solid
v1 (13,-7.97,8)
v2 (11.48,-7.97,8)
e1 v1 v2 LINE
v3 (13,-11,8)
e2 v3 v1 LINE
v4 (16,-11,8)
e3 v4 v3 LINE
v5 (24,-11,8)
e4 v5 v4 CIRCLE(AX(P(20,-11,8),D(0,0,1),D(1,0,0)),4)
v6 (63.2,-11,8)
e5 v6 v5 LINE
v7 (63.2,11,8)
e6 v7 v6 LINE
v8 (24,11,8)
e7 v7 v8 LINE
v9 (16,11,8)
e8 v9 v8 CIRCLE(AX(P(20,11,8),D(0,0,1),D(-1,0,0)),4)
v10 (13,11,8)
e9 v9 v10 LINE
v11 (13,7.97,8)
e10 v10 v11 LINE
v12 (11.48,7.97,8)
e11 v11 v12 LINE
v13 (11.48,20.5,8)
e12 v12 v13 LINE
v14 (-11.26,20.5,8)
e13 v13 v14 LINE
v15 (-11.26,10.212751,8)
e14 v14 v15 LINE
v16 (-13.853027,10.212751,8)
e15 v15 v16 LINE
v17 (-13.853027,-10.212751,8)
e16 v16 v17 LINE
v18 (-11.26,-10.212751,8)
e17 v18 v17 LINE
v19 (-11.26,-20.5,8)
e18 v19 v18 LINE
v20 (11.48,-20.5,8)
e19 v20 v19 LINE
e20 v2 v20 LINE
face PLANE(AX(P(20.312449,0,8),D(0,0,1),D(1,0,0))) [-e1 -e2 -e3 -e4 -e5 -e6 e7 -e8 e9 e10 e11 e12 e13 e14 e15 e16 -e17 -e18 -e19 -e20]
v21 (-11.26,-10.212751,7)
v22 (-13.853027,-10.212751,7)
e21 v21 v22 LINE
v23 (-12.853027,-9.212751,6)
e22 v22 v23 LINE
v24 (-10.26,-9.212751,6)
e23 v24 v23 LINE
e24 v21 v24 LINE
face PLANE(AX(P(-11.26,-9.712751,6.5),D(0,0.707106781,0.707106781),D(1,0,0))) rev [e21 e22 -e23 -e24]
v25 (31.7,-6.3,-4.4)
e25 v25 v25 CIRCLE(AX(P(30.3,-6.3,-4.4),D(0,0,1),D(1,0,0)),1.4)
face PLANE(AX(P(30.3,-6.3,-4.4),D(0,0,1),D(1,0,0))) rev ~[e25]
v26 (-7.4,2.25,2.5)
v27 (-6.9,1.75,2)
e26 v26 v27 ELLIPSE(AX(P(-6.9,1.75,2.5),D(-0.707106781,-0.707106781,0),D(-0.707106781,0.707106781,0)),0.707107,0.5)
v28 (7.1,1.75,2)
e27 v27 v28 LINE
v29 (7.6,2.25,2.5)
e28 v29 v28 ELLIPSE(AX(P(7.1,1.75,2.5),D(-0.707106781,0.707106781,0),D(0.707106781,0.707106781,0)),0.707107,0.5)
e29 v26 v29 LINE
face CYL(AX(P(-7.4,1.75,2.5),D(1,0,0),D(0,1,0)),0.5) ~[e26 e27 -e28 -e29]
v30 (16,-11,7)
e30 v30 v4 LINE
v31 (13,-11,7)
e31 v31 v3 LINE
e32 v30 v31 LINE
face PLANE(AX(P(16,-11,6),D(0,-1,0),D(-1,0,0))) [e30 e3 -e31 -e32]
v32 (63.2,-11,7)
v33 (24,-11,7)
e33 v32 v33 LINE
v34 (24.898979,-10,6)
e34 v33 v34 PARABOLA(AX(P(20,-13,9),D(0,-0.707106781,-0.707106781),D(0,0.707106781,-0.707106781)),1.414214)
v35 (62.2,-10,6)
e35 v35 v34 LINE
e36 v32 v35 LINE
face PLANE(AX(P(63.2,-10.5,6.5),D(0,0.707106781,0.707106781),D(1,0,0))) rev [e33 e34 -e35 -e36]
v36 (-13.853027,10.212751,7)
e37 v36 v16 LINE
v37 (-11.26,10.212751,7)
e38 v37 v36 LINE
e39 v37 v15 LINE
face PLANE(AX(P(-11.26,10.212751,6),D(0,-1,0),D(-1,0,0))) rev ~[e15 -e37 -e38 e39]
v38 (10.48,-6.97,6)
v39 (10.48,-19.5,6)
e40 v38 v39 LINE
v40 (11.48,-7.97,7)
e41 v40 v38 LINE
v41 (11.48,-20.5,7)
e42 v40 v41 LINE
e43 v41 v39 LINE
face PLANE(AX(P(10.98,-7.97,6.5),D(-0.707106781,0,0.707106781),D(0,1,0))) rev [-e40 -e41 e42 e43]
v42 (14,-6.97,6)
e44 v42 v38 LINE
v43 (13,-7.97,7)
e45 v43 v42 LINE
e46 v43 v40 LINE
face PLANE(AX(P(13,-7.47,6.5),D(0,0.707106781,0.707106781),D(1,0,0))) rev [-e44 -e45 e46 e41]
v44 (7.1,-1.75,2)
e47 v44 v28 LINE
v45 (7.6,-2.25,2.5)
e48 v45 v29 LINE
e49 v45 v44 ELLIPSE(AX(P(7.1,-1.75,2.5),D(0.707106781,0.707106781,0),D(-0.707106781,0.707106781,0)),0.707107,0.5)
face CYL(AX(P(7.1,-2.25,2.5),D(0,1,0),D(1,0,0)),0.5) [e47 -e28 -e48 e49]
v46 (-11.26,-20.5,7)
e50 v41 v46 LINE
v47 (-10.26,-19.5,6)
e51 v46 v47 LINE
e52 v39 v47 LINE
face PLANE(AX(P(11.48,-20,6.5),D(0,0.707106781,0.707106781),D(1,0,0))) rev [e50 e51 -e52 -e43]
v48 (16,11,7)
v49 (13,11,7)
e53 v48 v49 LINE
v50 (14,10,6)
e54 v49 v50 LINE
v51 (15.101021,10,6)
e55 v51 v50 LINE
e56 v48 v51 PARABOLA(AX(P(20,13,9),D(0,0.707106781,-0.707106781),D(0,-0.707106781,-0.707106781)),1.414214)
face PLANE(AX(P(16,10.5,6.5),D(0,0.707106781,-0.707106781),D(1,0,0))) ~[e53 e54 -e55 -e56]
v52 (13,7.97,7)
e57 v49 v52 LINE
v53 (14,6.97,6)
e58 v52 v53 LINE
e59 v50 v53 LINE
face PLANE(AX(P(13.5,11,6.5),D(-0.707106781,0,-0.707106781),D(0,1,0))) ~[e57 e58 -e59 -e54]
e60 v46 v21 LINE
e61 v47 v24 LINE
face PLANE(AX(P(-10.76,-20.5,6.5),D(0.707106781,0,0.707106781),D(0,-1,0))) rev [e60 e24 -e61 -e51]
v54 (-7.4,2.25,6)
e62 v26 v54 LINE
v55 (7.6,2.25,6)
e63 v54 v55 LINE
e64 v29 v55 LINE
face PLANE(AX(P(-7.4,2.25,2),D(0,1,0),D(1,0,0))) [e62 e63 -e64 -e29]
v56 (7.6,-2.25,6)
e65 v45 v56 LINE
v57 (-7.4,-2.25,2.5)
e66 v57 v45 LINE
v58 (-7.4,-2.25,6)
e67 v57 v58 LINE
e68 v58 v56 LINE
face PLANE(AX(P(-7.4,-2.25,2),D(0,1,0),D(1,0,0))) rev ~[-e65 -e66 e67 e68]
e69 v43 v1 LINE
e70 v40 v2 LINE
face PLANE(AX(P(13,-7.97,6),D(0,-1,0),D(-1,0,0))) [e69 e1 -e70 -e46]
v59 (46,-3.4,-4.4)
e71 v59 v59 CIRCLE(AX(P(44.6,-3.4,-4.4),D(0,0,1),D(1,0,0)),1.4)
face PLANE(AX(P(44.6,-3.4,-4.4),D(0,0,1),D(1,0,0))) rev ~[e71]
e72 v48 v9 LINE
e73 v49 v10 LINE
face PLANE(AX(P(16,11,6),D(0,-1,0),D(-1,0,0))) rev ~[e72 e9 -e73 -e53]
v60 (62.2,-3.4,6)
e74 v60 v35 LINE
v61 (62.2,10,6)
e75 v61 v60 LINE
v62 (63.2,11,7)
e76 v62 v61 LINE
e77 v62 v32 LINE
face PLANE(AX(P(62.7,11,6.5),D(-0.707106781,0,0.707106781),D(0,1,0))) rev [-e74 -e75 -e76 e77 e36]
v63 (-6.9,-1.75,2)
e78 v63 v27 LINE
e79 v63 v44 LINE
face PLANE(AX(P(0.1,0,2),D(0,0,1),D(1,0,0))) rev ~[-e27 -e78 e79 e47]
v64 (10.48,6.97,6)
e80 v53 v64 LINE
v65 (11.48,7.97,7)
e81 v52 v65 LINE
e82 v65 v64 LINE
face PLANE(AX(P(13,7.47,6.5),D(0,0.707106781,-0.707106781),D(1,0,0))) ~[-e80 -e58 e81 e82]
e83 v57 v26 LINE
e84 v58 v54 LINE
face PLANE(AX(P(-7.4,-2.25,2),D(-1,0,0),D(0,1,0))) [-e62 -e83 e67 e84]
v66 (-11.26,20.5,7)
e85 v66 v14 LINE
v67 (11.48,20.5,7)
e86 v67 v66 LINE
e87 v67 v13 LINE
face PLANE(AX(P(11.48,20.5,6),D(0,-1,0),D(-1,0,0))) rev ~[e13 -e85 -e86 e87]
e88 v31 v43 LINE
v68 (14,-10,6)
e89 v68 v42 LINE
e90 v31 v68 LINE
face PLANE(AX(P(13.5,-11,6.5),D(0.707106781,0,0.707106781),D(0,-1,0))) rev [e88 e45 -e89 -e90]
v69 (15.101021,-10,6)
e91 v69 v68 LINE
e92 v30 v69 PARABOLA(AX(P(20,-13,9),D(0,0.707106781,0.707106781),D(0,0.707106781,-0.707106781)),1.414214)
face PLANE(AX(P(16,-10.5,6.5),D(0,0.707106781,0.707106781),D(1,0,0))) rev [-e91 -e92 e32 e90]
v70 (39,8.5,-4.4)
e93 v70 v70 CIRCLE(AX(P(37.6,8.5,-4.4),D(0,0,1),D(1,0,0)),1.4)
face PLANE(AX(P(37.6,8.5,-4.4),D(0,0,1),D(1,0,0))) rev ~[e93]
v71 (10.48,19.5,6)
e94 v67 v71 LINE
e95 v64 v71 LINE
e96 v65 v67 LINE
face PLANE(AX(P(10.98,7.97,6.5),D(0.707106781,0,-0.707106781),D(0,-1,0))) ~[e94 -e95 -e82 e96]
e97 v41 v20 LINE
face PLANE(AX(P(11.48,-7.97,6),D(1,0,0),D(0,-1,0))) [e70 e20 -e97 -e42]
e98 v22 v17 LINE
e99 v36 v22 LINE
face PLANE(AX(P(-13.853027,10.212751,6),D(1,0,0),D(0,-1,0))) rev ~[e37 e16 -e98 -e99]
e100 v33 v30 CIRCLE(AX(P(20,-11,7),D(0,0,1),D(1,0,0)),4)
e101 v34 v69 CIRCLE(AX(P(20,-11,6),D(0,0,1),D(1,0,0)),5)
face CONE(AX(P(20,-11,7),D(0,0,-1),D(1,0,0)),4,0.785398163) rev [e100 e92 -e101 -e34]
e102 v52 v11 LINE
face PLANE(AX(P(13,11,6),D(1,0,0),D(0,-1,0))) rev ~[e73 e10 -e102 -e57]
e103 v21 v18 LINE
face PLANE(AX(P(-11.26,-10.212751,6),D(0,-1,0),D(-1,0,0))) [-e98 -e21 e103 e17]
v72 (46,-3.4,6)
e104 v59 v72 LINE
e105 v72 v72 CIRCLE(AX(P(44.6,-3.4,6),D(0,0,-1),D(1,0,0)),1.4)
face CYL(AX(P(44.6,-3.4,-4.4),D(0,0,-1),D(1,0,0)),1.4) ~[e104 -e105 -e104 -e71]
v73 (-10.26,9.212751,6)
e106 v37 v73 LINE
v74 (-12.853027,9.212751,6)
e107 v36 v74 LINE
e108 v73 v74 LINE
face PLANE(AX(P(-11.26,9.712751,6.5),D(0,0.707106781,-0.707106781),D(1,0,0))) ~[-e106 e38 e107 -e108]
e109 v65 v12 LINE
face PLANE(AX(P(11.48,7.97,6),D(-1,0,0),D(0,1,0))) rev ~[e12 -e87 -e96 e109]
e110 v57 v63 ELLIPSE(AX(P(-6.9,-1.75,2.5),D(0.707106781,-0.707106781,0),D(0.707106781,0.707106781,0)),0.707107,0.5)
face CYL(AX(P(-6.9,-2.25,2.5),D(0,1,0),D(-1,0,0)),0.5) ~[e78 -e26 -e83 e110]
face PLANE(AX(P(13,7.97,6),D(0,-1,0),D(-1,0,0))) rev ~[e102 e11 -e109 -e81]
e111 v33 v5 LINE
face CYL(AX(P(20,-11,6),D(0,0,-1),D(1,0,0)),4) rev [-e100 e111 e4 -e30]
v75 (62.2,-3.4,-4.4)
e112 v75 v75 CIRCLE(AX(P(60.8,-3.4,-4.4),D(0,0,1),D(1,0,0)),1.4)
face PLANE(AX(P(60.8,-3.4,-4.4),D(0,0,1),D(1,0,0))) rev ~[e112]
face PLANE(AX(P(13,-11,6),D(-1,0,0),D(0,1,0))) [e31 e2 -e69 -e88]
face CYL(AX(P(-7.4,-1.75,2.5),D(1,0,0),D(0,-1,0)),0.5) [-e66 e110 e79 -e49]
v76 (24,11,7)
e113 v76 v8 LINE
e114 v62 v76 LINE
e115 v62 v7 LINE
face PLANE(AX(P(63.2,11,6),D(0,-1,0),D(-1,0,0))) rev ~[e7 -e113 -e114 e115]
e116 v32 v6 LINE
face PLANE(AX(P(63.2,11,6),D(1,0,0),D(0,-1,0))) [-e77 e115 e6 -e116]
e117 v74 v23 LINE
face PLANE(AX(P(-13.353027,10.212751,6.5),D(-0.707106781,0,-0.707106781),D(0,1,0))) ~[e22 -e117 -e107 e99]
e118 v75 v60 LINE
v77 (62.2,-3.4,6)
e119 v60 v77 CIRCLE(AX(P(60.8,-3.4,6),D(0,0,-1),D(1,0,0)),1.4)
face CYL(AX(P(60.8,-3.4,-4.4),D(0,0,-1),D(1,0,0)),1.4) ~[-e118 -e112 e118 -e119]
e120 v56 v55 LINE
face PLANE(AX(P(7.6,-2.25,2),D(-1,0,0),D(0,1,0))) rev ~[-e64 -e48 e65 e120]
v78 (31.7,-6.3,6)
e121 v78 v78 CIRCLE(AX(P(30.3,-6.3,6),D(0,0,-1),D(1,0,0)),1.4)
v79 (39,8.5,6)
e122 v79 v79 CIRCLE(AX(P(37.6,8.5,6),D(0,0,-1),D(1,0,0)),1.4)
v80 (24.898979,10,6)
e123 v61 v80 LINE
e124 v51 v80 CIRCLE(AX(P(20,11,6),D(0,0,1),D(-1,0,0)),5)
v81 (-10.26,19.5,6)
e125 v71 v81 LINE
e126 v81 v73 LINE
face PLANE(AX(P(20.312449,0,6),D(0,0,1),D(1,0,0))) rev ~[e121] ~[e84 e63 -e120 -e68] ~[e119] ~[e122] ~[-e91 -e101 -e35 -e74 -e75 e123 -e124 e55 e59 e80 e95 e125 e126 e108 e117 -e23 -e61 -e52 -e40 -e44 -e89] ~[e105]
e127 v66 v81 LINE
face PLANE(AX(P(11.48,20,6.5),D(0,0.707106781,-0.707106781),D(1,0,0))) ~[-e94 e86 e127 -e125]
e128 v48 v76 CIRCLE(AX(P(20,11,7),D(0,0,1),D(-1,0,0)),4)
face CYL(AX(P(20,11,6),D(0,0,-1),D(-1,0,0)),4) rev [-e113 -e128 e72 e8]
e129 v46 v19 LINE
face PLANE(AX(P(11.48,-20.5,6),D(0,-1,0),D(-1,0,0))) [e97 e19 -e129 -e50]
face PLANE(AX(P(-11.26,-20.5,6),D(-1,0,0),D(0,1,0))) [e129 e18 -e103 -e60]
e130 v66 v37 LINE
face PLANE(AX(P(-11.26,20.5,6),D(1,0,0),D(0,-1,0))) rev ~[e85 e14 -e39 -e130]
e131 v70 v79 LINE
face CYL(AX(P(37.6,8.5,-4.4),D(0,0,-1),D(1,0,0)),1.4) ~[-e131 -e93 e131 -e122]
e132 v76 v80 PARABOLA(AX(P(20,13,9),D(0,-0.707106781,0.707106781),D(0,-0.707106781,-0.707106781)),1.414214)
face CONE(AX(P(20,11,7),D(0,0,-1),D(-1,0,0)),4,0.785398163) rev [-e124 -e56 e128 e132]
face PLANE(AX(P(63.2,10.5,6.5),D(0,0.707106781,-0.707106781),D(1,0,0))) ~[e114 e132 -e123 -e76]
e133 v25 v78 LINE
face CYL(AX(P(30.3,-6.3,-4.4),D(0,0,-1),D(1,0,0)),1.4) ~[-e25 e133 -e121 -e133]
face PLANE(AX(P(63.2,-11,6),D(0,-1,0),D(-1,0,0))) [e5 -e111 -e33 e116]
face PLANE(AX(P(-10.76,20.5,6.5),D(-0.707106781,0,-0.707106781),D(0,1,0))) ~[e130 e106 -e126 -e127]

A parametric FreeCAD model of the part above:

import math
import FreeCAD as App
import Part
import Sketcher
from FreeCAD import Vector


def edges_at(feature, points):
    """Names of the edges that pass closest to the given points."""
    edges = feature.Shape.Edges
    near = lambda p: min(range(len(edges)), key=lambda i: edges[i].distToShape(Part.Vertex(*p))[0])
    return sorted({f"Edge{near(p) + 1}" for p in points})

doc = App.newDocument("Part")
body = doc.addObject("PartDesign::Body", "Body")

# Sketch on XY plane
sketch1 = doc.addObject("Sketcher::SketchObject", "Sketch")
body.addObject(sketch1)
sketch1.AttachmentSupport = (doc.XY_Plane, [""])
sketch1.MapMode = "FlatFace"
sketch1.AttachmentOffset = App.Placement(Vector(0, 0, -4.4), App.Rotation())
sketch1.addGeometry(Part.Circle(Vector(44.6, -3.4, 0), Vector(0, 0, 1), 1.4), False)
sketch1.addConstraint([
    Sketcher.Constraint("Diameter", 0, 2.8),
    Sketcher.Constraint("DistanceX", -1, 1, 0, 3, 44.6),
    Sketcher.Constraint("DistanceY", 0, 3, -1, 1, 3.4),
])
pad1 = doc.addObject("PartDesign::Pad", "Pad")
body.addObject(pad1)
pad1.Profile = sketch1
pad1.Length = 11
body2 = doc.addObject("PartDesign::Body", "Body001")

# Sketch on XY plane
sketch2 = doc.addObject("Sketcher::SketchObject", "Sketch001")
body2.addObject(sketch2)
sketch2.AttachmentSupport = (doc.getObject("XY_Plane001"), [""])
sketch2.MapMode = "FlatFace"
sketch2.AttachmentOffset = App.Placement(Vector(0, 0, -4.4), App.Rotation())
sketch2.addGeometry(Part.Circle(Vector(30.3, -6.3, 0), Vector(0, 0, 1), 1.4), False)
sketch2.addConstraint([
    Sketcher.Constraint("Diameter", 0, 2.8),
    Sketcher.Constraint("DistanceX", -1, 1, 0, 3, 30.3),
    Sketcher.Constraint("DistanceY", 0, 3, -1, 1, 6.3),
])
pad2 = doc.addObject("PartDesign::Pad", "Pad001")
body2.addObject(pad2)
pad2.Profile = sketch2
pad2.Length = 11
body3 = doc.addObject("PartDesign::Body", "Body002")

# Sketch on XY plane
sketch3 = doc.addObject("Sketcher::SketchObject", "Sketch002")
body3.addObject(sketch3)
sketch3.AttachmentSupport = (doc.getObject("XY_Plane002"), [""])
sketch3.MapMode = "FlatFace"
sketch3.AttachmentOffset = App.Placement(Vector(0, 0, -4.4), App.Rotation())
sketch3.addGeometry(Part.Circle(Vector(37.6, 8.5, 0), Vector(0, 0, 1), 1.4), False)
sketch3.addConstraint([
    Sketcher.Constraint("Diameter", 0, 2.8),
    Sketcher.Constraint("DistanceX", -1, 1, 0, 3, 37.6),
    Sketcher.Constraint("DistanceY", -1, 1, 0, 3, 8.5),
])
pad3 = doc.addObject("PartDesign::Pad", "Pad002")
body3.addObject(pad3)
pad3.Profile = sketch3
pad3.Length = 11
body4 = doc.addObject("PartDesign::Body", "Body003")

# Sketch on XY plane
sketch4 = doc.addObject("Sketcher::SketchObject", "Sketch003")
body4.addObject(sketch4)
sketch4.AttachmentSupport = (doc.getObject("XY_Plane003"), [""])
sketch4.MapMode = "FlatFace"
sketch4.AttachmentOffset = App.Placement(Vector(0, 0, 2), App.Rotation())
sketch4.addGeometry([
    Part.LineSegment(Vector(-7.4, 2.2, 0), Vector(-7.4, -2.2, 0)),
    Part.LineSegment(Vector(-7.4, -2.2, 0), Vector(7.6, -2.2, 0)),
    Part.LineSegment(Vector(7.6, -2.2, 0), Vector(7.6, 2.2, 0)),
    Part.LineSegment(Vector(7.6, 2.2, 0), Vector(-7.4, 2.2, 0)),
], False)
sketch4.addConstraint([
    Sketcher.Constraint("Coincident", 0, 2, 1, 1),
    Sketcher.Constraint("Coincident", 1, 2, 2, 1),
    Sketcher.Constraint("Coincident", 2, 2, 3, 1),
    Sketcher.Constraint("Coincident", 3, 2, 0, 1),
    Sketcher.Constraint("Vertical", 0),
    Sketcher.Constraint("Horizontal", 1),
    Sketcher.Constraint("Vertical", 2),
    Sketcher.Constraint("Horizontal", 3),
    Sketcher.Constraint("DistanceX", 1, 1, 1, 2, 15.0),
    Sketcher.Constraint("DistanceY", 0, 2, 0, 1, 4.5),
    Sketcher.Constraint("DistanceX", 0, 2, -1, 1, 7.4),
    Sketcher.Constraint("DistanceY", 0, 2, -1, 1, 2.25),
])
pad4 = doc.addObject("PartDesign::Pad", "Pad003")
body4.addObject(pad4)
pad4.Profile = sketch4
pad4.Length = 4
doc.recompute()

fillet = doc.addObject("PartDesign::Fillet", "Fillet")
body4.addObject(fillet)
fillet.Base = (pad4, edges_at(pad4, [
    (-7.4, 0, 2),
    (7.6, 0, 2),
    (0.1, -2.25, 2),
    (0.1, 2.25, 2),
]))
fillet.Radius = 0.5
body5 = doc.addObject("PartDesign::Body", "Body004")

# Sketch on XY plane
sketch5 = doc.addObject("Sketcher::SketchObject", "Sketch004")
body5.addObject(sketch5)
sketch5.AttachmentSupport = (doc.getObject("XY_Plane004"), [""])
sketch5.MapMode = "FlatFace"
sketch5.addGeometry([
    Part.LineSegment(Vector(-11.3, 20.5, 0), Vector(-11.3, 10.2, 0)),  # 0
    Part.LineSegment(Vector(-11.3, 10.2, 0), Vector(-13.9, 10.2, 0)),  # 1
    Part.LineSegment(Vector(-13.9, 10.2, 0), Vector(-13.9, -10.2, 0)),  # 2
    Part.LineSegment(Vector(-13.9, -10.2, 0), Vector(-11.3, -10.2, 0)),  # 3
    Part.LineSegment(Vector(-11.3, -10.2, 0), Vector(-11.3, -20.5, 0)),  # 4
    Part.LineSegment(Vector(-11.3, -20.5, 0), Vector(11.5, -20.5, 0)),  # 5
    Part.LineSegment(Vector(11.5, -20.5, 0), Vector(11.5, -8, 0)),  # 6
    Part.LineSegment(Vector(11.5, -8, 0), Vector(13, -8, 0)),  # 7
    Part.LineSegment(Vector(13, -8, 0), Vector(13, -11, 0)),  # 8
    Part.LineSegment(Vector(13, -11, 0), Vector(16, -11, 0)),  # 9
    Part.ArcOfCircle(Part.Circle(Vector(20, -11, 0), Vector(0, 0, 1), 4), math.radians(0), math.radians(180)),  # 10
    Part.LineSegment(Vector(24, -11, 0), Vector(63.2, -11, 0)),  # 11
    Part.LineSegment(Vector(63.2, -11, 0), Vector(63.2, 11, 0)),  # 12
    Part.LineSegment(Vector(63.2, 11, 0), Vector(24, 11, 0)),  # 13
    Part.ArcOfCircle(Part.Circle(Vector(20, 11, 0), Vector(0, 0, 1), 4), math.radians(180), math.radians(360)),  # 14
    Part.LineSegment(Vector(16, 11, 0), Vector(13, 11, 0)),  # 15
    Part.LineSegment(Vector(13, 11, 0), Vector(13, 8, 0)),  # 16
    Part.LineSegment(Vector(13, 8, 0), Vector(11.5, 8, 0)),  # 17
    Part.LineSegment(Vector(11.5, 8, 0), Vector(11.5, 20.5, 0)),  # 18
    Part.LineSegment(Vector(11.5, 20.5, 0), Vector(-11.3, 20.5, 0)),  # 19
], False)
sketch5.addConstraint([
    Sketcher.Constraint("Coincident", 0, 2, 1, 1),
    Sketcher.Constraint("Coincident", 1, 2, 2, 1),
    Sketcher.Constraint("Coincident", 2, 2, 3, 1),
    Sketcher.Constraint("Coincident", 3, 2, 4, 1),
    Sketcher.Constraint("Coincident", 4, 2, 5, 1),
    Sketcher.Constraint("Coincident", 5, 2, 6, 1),
    Sketcher.Constraint("Coincident", 6, 2, 7, 1),
    Sketcher.Constraint("Coincident", 7, 2, 8, 1),
    Sketcher.Constraint("Coincident", 8, 2, 9, 1),
    Sketcher.Constraint("Coincident", 9, 2, 10, 2),
    Sketcher.Constraint("Coincident", 10, 1, 11, 1),
    Sketcher.Constraint("Coincident", 11, 2, 12, 1),
    Sketcher.Constraint("Coincident", 12, 2, 13, 1),
    Sketcher.Constraint("Coincident", 13, 2, 14, 2),
    Sketcher.Constraint("Coincident", 14, 1, 15, 1),
    Sketcher.Constraint("Coincident", 15, 2, 16, 1),
    Sketcher.Constraint("Coincident", 16, 2, 17, 1),
    Sketcher.Constraint("Coincident", 17, 2, 18, 1),
    Sketcher.Constraint("Coincident", 18, 2, 19, 1),
    Sketcher.Constraint("Coincident", 19, 2, 0, 1),
    Sketcher.Constraint("Vertical", 0),
    Sketcher.Constraint("Horizontal", 1),
    Sketcher.Constraint("Vertical", 2),
    Sketcher.Constraint("Horizontal", 3),
    Sketcher.Constraint("Vertical", 4),
    Sketcher.Constraint("Horizontal", 5),
    Sketcher.Constraint("Vertical", 6),
    Sketcher.Constraint("Horizontal", 7),
    Sketcher.Constraint("Vertical", 8),
    Sketcher.Constraint("Horizontal", 9),
    Sketcher.Constraint("Horizontal", 11),
    Sketcher.Constraint("Vertical", 12),
    Sketcher.Constraint("Horizontal", 13),
    Sketcher.Constraint("Horizontal", 15),
    Sketcher.Constraint("Vertical", 16),
    Sketcher.Constraint("Horizontal", 17),
    Sketcher.Constraint("Vertical", 18),
    Sketcher.Constraint("Horizontal", 19),
    Sketcher.Constraint("Equal", 10, 14),
    Sketcher.Constraint("Symmetric", 10, 3, 14, 3, -1),
    Sketcher.Constraint("Symmetric", 0, 2, 3, 2, -1),
    Sketcher.Constraint("Symmetric", 8, 2, 15, 2, -1),
    Sketcher.Constraint("Symmetric", 6, 2, 17, 2, -1),
    Sketcher.Constraint("Horizontal", 10, 3, 8, 2),
    Sketcher.Constraint("Horizontal", 9, 2, 10, 1),
    Sketcher.Constraint("Horizontal", 14, 3, 12, 2),
    Sketcher.Constraint("Equal", 0, 4),
    Sketcher.Constraint("Radius", 10, 4.0),
    Sketcher.Constraint("DistanceX", 9, 1, 9, 2, 3.0),
    Sketcher.Constraint("DistanceY", 12, 1, 12, 2, 22.0),
    Sketcher.Constraint("DistanceX", 11, 1, 11, 2, 39.2),
    Sketcher.Constraint("DistanceX", -1, 1, 10, 3, 20.0),
    Sketcher.Constraint("DistanceX", 5, 1, 5, 2, 22.74),
    Sketcher.Constraint("DistanceX", 7, 1, 7, 2, 1.52),
    Sketcher.Constraint("DistanceY", 6, 1, 6, 2, 12.53),
    Sketcher.Constraint("DistanceY", 8, 2, 8, 1, 3.03),
    Sketcher.Constraint("DistanceY", 0, 2, 0, 1, 10.287249),
    Sketcher.Constraint("DistanceX", 1, 2, 1, 1, 2.593027),
])
pad5 = doc.addObject("PartDesign::Pad", "Pad004")
body5.addObject(pad5)
pad5.Profile = sketch5
pad5.Length = 2
doc.recompute()

chamfer = doc.addObject("PartDesign::Chamfer", "Chamfer")
body5.addObject(chamfer)
chamfer.Base = (pad5, edges_at(pad5, [
    (14.5, 11, 0),
    (13, 9.485, 0),
    (12.24, 7.97, 0),
    (11.48, 14.235, 0),
    (0.11, 20.5, 0),
    (-11.26, 15.356, 0),
    (-12.557, 10.213, 0),
    (-13.853, 0, 0),
    (-12.557, -10.213, 0),
    (-11.26, -15.356, 0),
    (0.11, -20.5, 0),
    (11.48, -14.235, 0),
    (12.24, -7.97, 0),
    (13, -9.485, 0),
    (14.5, -11, 0),
    (20, -7, 0),
    (43.6, -11, 0),
    (63.2, 0, 0),
    (43.6, 11, 0),
    (20, 7, 0),
]))
chamfer.Size = 1
body6 = doc.addObject("PartDesign::Body", "Body005")
doc.recompute()

body5.Placement = App.Placement(Vector(0, 0, 6), App.Rotation(Vector(0, 0, 1), 0))
boolean = doc.addObject("PartDesign::Boolean", "Boolean")
body6.addObject(boolean)
boolean.Type = "Fuse"
boolean.addObjects([body5])
body7 = doc.addObject("PartDesign::Body", "Body006")
body7.AllowCompound = True

# Sketch on XY plane
sketch6 = doc.addObject("Sketcher::SketchObject", "Sketch005")
body7.addObject(sketch6)
sketch6.AttachmentSupport = (doc.getObject("XY_Plane006"), [""])
sketch6.MapMode = "FlatFace"
sketch6.AttachmentOffset = App.Placement(Vector(0, 0, -4.4), App.Rotation())
sketch6.addGeometry(Part.Circle(Vector(60.8, -3.4, 0), Vector(0, 0, 1), 1.4), False)
sketch6.addConstraint([
    Sketcher.Constraint("Diameter", 0, 2.8),
    Sketcher.Constraint("DistanceX", -1, 1, 0, 3, 60.8),
    Sketcher.Constraint("DistanceY", 0, 3, -1, 1, 3.4),
])
pad6 = doc.addObject("PartDesign::Pad", "Pad005")
body7.addObject(pad6)
pad6.Profile = sketch6
pad6.Length = 11
doc.recompute()

boolean2 = doc.addObject("PartDesign::Boolean", "Boolean001")
body7.addObject(boolean2)
boolean2.Type = "Fuse"
boolean2.addObjects([body])
doc.recompute()

boolean3 = doc.addObject("PartDesign::Boolean", "Boolean002")
body7.addObject(boolean3)
boolean3.Type = "Fuse"
boolean3.addObjects([body2])
doc.recompute()

boolean4 = doc.addObject("PartDesign::Boolean", "Boolean003")
body7.addObject(boolean4)
boolean4.Type = "Fuse"
boolean4.addObjects([body3])
doc.recompute()

boolean5 = doc.addObject("PartDesign::Boolean", "Boolean004")
body7.addObject(boolean5)
boolean5.Type = "Fuse"
boolean5.addObjects([body4])
doc.recompute()

boolean6 = doc.addObject("PartDesign::Boolean", "Boolean005")
body7.addObject(boolean6)
boolean6.Type = "Fuse"
boolean6.addObjects([body6])

doc.recompute()
